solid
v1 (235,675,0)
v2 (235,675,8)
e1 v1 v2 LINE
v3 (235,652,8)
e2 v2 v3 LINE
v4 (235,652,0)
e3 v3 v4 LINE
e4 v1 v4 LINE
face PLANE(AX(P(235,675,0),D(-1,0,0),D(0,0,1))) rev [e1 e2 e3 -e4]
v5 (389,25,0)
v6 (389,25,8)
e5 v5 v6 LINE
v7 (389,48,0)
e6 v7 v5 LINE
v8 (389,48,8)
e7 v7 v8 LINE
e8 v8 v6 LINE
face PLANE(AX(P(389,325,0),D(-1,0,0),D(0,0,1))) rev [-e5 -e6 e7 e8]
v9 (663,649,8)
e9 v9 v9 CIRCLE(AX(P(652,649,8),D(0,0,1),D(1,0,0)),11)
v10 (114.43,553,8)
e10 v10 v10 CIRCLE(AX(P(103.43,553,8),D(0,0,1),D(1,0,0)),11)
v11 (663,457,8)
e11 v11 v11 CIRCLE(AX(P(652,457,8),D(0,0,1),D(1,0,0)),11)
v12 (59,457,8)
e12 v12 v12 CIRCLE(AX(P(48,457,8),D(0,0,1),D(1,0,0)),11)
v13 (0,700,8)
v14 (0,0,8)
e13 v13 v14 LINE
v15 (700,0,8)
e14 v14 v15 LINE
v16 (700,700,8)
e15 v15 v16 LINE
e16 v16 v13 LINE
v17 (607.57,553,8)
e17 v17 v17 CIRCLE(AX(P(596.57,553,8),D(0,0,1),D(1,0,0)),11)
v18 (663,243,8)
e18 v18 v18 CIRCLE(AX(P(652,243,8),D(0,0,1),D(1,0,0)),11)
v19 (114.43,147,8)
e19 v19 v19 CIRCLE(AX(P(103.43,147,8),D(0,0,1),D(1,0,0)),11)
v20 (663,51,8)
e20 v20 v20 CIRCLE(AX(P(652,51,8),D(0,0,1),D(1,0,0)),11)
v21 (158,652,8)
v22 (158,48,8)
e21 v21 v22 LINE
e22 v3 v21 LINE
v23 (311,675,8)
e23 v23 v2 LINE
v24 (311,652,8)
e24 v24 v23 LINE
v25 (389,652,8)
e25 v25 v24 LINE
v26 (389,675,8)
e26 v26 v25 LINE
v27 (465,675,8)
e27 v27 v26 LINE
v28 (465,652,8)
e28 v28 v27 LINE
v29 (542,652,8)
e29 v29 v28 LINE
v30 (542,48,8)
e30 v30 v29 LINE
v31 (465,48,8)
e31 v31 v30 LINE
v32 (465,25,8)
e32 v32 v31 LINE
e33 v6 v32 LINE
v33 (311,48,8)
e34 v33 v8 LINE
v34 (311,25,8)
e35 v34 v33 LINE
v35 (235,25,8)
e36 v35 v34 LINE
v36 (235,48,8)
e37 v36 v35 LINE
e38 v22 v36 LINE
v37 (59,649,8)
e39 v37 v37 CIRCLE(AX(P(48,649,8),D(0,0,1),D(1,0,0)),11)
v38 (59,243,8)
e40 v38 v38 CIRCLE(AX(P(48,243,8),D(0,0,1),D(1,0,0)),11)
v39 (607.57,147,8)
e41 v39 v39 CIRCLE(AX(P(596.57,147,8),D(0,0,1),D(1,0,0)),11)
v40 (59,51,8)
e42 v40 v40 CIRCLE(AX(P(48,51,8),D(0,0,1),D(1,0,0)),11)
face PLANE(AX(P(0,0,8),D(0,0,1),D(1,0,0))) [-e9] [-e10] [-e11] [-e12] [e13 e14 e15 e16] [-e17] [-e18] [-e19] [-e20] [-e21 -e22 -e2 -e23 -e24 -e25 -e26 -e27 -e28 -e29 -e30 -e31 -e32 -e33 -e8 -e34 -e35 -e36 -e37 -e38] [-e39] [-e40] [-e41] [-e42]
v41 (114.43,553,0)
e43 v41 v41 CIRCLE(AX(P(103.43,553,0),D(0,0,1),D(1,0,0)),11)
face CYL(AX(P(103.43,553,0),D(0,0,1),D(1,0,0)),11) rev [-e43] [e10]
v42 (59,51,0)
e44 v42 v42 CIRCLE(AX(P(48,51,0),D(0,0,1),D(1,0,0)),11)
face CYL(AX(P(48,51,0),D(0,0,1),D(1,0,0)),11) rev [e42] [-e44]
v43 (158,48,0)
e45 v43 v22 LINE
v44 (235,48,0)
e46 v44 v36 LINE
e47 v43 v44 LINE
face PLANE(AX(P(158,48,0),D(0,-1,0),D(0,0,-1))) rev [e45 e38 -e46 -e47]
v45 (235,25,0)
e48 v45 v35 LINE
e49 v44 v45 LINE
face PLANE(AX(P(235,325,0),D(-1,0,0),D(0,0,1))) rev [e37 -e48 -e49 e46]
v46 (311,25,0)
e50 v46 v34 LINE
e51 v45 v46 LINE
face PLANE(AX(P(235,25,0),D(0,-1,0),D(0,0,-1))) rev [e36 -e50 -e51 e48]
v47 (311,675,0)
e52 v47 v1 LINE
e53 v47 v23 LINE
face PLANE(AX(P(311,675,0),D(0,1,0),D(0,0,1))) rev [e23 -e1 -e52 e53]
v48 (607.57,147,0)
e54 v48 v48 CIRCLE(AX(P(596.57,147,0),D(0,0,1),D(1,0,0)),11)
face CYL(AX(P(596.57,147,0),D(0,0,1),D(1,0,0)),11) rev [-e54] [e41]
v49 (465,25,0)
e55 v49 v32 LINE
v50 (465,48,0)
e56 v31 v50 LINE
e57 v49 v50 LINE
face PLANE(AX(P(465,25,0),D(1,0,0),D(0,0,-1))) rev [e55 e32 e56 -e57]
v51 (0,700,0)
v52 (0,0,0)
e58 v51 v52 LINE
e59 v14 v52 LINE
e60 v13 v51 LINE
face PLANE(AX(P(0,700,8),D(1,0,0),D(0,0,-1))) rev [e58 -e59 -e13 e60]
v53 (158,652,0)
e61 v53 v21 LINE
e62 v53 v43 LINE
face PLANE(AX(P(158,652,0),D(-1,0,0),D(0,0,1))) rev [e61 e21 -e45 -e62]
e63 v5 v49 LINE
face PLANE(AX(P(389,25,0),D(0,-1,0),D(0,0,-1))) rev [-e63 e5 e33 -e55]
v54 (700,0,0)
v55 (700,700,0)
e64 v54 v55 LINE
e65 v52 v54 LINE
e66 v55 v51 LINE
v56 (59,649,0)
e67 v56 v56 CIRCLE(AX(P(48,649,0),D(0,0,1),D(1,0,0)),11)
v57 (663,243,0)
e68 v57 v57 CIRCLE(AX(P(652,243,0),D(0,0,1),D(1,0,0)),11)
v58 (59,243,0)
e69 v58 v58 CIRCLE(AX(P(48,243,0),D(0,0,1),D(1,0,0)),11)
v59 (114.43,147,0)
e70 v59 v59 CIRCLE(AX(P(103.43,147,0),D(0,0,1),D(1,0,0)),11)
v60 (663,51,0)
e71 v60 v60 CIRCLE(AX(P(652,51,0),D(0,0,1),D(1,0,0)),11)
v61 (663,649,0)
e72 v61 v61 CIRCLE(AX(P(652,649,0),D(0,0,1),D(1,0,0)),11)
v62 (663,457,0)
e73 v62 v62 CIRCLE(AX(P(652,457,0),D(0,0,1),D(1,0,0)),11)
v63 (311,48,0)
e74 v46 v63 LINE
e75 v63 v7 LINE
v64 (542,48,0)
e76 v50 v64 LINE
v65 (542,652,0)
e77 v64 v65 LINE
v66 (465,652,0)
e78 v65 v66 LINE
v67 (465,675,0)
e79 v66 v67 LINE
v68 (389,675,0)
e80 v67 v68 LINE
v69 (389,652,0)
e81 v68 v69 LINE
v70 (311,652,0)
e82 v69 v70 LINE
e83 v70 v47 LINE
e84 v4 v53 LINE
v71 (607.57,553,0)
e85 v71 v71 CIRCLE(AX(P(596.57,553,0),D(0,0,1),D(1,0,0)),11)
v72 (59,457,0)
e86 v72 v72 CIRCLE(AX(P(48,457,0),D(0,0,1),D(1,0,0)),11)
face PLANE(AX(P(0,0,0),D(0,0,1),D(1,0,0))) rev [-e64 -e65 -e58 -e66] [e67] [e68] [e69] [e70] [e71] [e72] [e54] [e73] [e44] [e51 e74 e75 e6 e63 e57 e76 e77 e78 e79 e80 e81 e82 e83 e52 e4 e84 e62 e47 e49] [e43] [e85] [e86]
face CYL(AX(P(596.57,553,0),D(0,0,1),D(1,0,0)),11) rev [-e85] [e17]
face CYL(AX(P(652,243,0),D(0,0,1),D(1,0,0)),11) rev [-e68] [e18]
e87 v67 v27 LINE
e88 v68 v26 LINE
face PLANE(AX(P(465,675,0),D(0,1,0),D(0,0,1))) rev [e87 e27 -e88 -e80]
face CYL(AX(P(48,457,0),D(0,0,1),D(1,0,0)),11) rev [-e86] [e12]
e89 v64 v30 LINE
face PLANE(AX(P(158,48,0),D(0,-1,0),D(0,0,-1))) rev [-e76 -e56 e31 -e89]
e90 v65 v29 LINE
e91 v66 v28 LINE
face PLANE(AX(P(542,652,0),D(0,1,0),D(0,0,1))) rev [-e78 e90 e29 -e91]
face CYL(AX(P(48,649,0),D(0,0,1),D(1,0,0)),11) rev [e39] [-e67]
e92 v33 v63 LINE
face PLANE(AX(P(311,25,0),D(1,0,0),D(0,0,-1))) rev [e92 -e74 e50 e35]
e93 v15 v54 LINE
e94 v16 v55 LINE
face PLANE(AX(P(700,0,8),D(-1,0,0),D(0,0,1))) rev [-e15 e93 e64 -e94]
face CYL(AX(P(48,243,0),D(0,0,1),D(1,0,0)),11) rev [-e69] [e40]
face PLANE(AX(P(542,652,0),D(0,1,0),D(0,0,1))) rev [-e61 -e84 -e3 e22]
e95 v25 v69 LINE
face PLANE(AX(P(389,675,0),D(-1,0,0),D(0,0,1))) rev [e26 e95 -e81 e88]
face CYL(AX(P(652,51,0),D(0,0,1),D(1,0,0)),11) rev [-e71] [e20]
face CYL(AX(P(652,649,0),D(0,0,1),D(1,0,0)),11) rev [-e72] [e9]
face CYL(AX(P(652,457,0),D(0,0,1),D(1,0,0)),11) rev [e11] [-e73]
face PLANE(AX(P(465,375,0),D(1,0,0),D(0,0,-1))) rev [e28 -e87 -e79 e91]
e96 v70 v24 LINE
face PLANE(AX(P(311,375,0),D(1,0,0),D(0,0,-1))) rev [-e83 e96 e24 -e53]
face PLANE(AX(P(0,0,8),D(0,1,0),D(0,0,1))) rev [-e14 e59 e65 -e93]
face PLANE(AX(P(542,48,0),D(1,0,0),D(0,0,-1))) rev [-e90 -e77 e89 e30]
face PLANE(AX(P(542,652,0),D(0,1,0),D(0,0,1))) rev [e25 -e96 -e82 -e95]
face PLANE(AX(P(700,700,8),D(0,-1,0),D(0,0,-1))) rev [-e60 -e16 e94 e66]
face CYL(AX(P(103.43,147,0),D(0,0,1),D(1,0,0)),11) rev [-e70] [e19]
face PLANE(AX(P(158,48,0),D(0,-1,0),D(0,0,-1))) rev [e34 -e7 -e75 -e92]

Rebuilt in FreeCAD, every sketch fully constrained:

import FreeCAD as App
import Part
import Sketcher
from FreeCAD import Vector


def add_polygon(sketch, points):
    """Adds a closed chain of lines whose ends are joined by coincident constraints."""
    first, n = sketch.GeometryCount, len(points)
    for a, b in zip(points, points[1:] + points[:1]):
        sketch.addGeometry(Part.LineSegment(App.Vector(*a, 0), App.Vector(*b, 0)), False)
    for i in range(n):
        sketch.addConstraint(Sketcher.Constraint("Coincident", first + i, 2, first + (i + 1) % n, 1))

doc = App.newDocument("Part")
params = doc.addObject("Spreadsheet::Sheet", "Params")
for row, (alias, value) in enumerate([
    ("sketch1_width", "700 mm"),
    ("pad1_length", "8 mm"),
    ("sketch2_width", "76 mm"),
    ("sketch2_height", "300 mm"),
    ("sketch3_width", "76 mm"),
    ("sketch3_height", "300 mm"),
    ("sketch4_width", "76 mm"),
    ("sketch4_height", "300 mm"),
    ("sketch5_width", "76 mm"),
    ("sketch5_height", "300 mm"),
    ("sketch6_diameter", "22 mm"),
    ("sketch7_diameter", "22 mm"),
    ("sketch8_diameter", "22 mm"),
    ("sketch9_diameter", "22 mm"),
    ("sketch10_diameter", "22 mm"),
    ("sketch11_diameter", "22 mm"),
    ("sketch12_diameter", "22 mm"),
    ("sketch13_diameter", "22 mm"),
    ("sketch14_diameter", "22 mm"),
    ("sketch15_diameter", "22 mm"),
    ("sketch16_diameter", "22 mm"),
    ("sketch17_diameter", "22 mm"),
    ("sketch18_width", "384 mm"),
    ("sketch18_height", "604 mm"),
], start=1):
    params.set(f"A{row}", alias)
    params.set(f"B{row}", "=" + value)
    params.setAlias(f"B{row}", alias)

body = doc.addObject("PartDesign::Body", "Body")

# Sketch on XY plane
sketch1 = doc.addObject("Sketcher::SketchObject", "Sketch")
body.addObject(sketch1)
sketch1.AttachmentSupport = (doc.XY_Plane, [""])
sketch1.MapMode = "FlatFace"
add_polygon(sketch1, [(0, 700), (0, 0), (700, 0), (700, 700)])  # lines 0-3
sketch1.addConstraint([
    Sketcher.Constraint("Vertical", 0),
    Sketcher.Constraint("Horizontal", 1),
    Sketcher.Constraint("Vertical", 2),
    Sketcher.Constraint("Horizontal", 3),
    Sketcher.Constraint("Coincident", 0, 2, -1, 1),
    Sketcher.Constraint("Equal", 3, 0),
    Sketcher.Constraint("DistanceX", 1, 1, 1, 2, 700.0),
])
sketch1.setExpression("Constraints[10]", "Params.sketch1_width")
pad1 = doc.addObject("PartDesign::Pad", "Pad")
body.addObject(pad1)
pad1.Profile = sketch1
pad1.setExpression("Length", "Params.pad1_length")

# Sketch on XY plane
sketch2 = doc.addObject("Sketcher::SketchObject", "Sketch001")
body.addObject(sketch2)
sketch2.AttachmentSupport = (doc.XY_Plane, [""])
sketch2.MapMode = "FlatFace"
sketch2.AttachmentOffset = App.Placement(Vector(0, 0, 8), App.Rotation())
add_polygon(sketch2, [(235, 325), (235, 25), (311, 25), (311, 325)])  # lines 0-3
sketch2.addConstraint([
    Sketcher.Constraint("Vertical", 0),
    Sketcher.Constraint("Horizontal", 1),
    Sketcher.Constraint("Vertical", 2),
    Sketcher.Constraint("Horizontal", 3),
    Sketcher.Constraint("DistanceX", 1, 1, 1, 2, 76.0),
    Sketcher.Constraint("DistanceY", 0, 2, 0, 1, 300.0),
    Sketcher.Constraint("DistanceX", -1, 1, 0, 2, 235.0),
    Sketcher.Constraint("DistanceY", -1, 1, 0, 2, 25.0),
])
sketch2.setExpression("Constraints[8]", "Params.sketch2_width")
sketch2.setExpression("Constraints[9]", "Params.sketch2_height")
pocket1 = doc.addObject("PartDesign::Pocket", "Pocket")
body.addObject(pocket1)
pocket1.Profile = sketch2
pocket1.Type = "ThroughAll"

# Sketch on XY plane
sketch3 = doc.addObject("Sketcher::SketchObject", "Sketch002")
body.addObject(sketch3)
sketch3.AttachmentSupport = (doc.XY_Plane, [""])
sketch3.MapMode = "FlatFace"
sketch3.AttachmentOffset = App.Placement(Vector(0, 0, 8), App.Rotation())
add_polygon(sketch3, [(235, 675), (235, 375), (311, 375), (311, 675)])  # lines 0-3
sketch3.addConstraint([
    Sketcher.Constraint("Vertical", 0),
    Sketcher.Constraint("Horizontal", 1),
    Sketcher.Constraint("Vertical", 2),
    Sketcher.Constraint("Horizontal", 3),
    Sketcher.Constraint("DistanceX", 1, 1, 1, 2, 76.0),
    Sketcher.Constraint("DistanceY", 0, 2, 0, 1, 300.0),
    Sketcher.Constraint("DistanceX", -1, 1, 0, 2, 235.0),
    Sketcher.Constraint("DistanceY", -1, 1, 0, 2, 375.0),
])
sketch3.setExpression("Constraints[8]", "Params.sketch3_width")
sketch3.setExpression("Constraints[9]", "Params.sketch3_height")
pocket2 = doc.addObject("PartDesign::Pocket", "Pocket001")
body.addObject(pocket2)
pocket2.Profile = sketch3
pocket2.Type = "ThroughAll"

# Sketch on XY plane
sketch4 = doc.addObject("Sketcher::SketchObject", "Sketch003")
body.addObject(sketch4)
sketch4.AttachmentSupport = (doc.XY_Plane, [""])
sketch4.MapMode = "FlatFace"
sketch4.AttachmentOffset = App.Placement(Vector(0, 0, 8), App.Rotation())
add_polygon(sketch4, [(389, 325), (389, 25), (465, 25), (465, 325)])  # lines 0-3
sketch4.addConstraint([
    Sketcher.Constraint("Vertical", 0),
    Sketcher.Constraint("Horizontal", 1),
    Sketcher.Constraint("Vertical", 2),
    Sketcher.Constraint("Horizontal", 3),
    Sketcher.Constraint("DistanceX", 1, 1, 1, 2, 76.0),
    Sketcher.Constraint("DistanceY", 0, 2, 0, 1, 300.0),
    Sketcher.Constraint("DistanceX", -1, 1, 0, 2, 389.0),
    Sketcher.Constraint("DistanceY", -1, 1, 0, 2, 25.0),
])
sketch4.setExpression("Constraints[8]", "Params.sketch4_width")
sketch4.setExpression("Constraints[9]", "Params.sketch4_height")
pocket3 = doc.addObject("PartDesign::Pocket", "Pocket002")
body.addObject(pocket3)
pocket3.Profile = sketch4
pocket3.Type = "ThroughAll"

# Sketch on XY plane
sketch5 = doc.addObject("Sketcher::SketchObject", "Sketch004")
body.addObject(sketch5)
sketch5.AttachmentSupport = (doc.XY_Plane, [""])
sketch5.MapMode = "FlatFace"
sketch5.AttachmentOffset = App.Placement(Vector(0, 0, 8), App.Rotation())
add_polygon(sketch5, [(389, 675), (389, 375), (465, 375), (465, 675)])  # lines 0-3
sketch5.addConstraint([
    Sketcher.Constraint("Vertical", 0),
    Sketcher.Constraint("Horizontal", 1),
    Sketcher.Constraint("Vertical", 2),
    Sketcher.Constraint("Horizontal", 3),
    Sketcher.Constraint("DistanceX", 1, 1, 1, 2, 76.0),
    Sketcher.Constraint("DistanceY", 0, 2, 0, 1, 300.0),
    Sketcher.Constraint("DistanceX", -1, 1, 0, 2, 389.0),
    Sketcher.Constraint("DistanceY", -1, 1, 0, 2, 375.0),
])
sketch5.setExpression("Constraints[8]", "Params.sketch5_width")
sketch5.setExpression("Constraints[9]", "Params.sketch5_height")
pocket4 = doc.addObject("PartDesign::Pocket", "Pocket003")
body.addObject(pocket4)
pocket4.Profile = sketch5
pocket4.Type = "ThroughAll"

# Sketch on XY plane
sketch6 = doc.addObject("Sketcher::SketchObject", "Sketch005")
body.addObject(sketch6)
sketch6.AttachmentSupport = (doc.XY_Plane, [""])
sketch6.MapMode = "FlatFace"
sketch6.AttachmentOffset = App.Placement(Vector(0, 0, 8), App.Rotation())
sketch6.addGeometry(Part.Circle(Vector(48, 51, 0), Vector(0, 0, 1), 11), False)
sketch6.addConstraint([
    Sketcher.Constraint("Diameter", 0, 22.0),
    Sketcher.Constraint("DistanceX", -1, 1, 0, 3, 48.0),
    Sketcher.Constraint("DistanceY", -1, 1, 0, 3, 51.0),
])
sketch6.setExpression("Constraints[0]", "Params.sketch6_diameter")
pocket5 = doc.addObject("PartDesign::Pocket", "Pocket004")
body.addObject(pocket5)
pocket5.Profile = sketch6
pocket5.Type = "ThroughAll"

# Sketch on XY plane
sketch7 = doc.addObject("Sketcher::SketchObject", "Sketch006")
body.addObject(sketch7)
sketch7.AttachmentSupport = (doc.XY_Plane, [""])
sketch7.MapMode = "FlatFace"
sketch7.AttachmentOffset = App.Placement(Vector(0, 0, 8), App.Rotation())
sketch7.addGeometry(Part.Circle(Vector(48, 243, 0), Vector(0, 0, 1), 11), False)
sketch7.addConstraint([
    Sketcher.Constraint("Diameter", 0, 22.0),
    Sketcher.Constraint("DistanceX", -1, 1, 0, 3, 48.0),
    Sketcher.Constraint("DistanceY", -1, 1, 0, 3, 243.0),
])
sketch7.setExpression("Constraints[0]", "Params.sketch7_diameter")
pocket6 = doc.addObject("PartDesign::Pocket", "Pocket005")
body.addObject(pocket6)
pocket6.Profile = sketch7
pocket6.Type = "ThroughAll"

# Sketch on XY plane
sketch8 = doc.addObject("Sketcher::SketchObject", "Sketch007")
body.addObject(sketch8)
sketch8.AttachmentSupport = (doc.XY_Plane, [""])
sketch8.MapMode = "FlatFace"
sketch8.AttachmentOffset = App.Placement(Vector(0, 0, 8), App.Rotation())
sketch8.addGeometry(Part.Circle(Vector(48, 457, 0), Vector(0, 0, 1), 11), False)
sketch8.addConstraint([
    Sketcher.Constraint("Diameter", 0, 22.0),
    Sketcher.Constraint("DistanceX", -1, 1, 0, 3, 48.0),
    Sketcher.Constraint("DistanceY", -1, 1, 0, 3, 457.0),
])
sketch8.setExpression("Constraints[0]", "Params.sketch8_diameter")
pocket7 = doc.addObject("PartDesign::Pocket", "Pocket006")
body.addObject(pocket7)
pocket7.Profile = sketch8
pocket7.Type = "ThroughAll"

# Sketch on XY plane
sketch9 = doc.addObject("Sketcher::SketchObject", "Sketch008")
body.addObject(sketch9)
sketch9.AttachmentSupport = (doc.XY_Plane, [""])
sketch9.MapMode = "FlatFace"
sketch9.AttachmentOffset = App.Placement(Vector(0, 0, 8), App.Rotation())
sketch9.addGeometry(Part.Circle(Vector(48, 649, 0), Vector(0, 0, 1), 11), False)
sketch9.addConstraint([
    Sketcher.Constraint("Diameter", 0, 22.0),
    Sketcher.Constraint("DistanceX", -1, 1, 0, 3, 48.0),
    Sketcher.Constraint("DistanceY", -1, 1, 0, 3, 649.0),
])
sketch9.setExpression("Constraints[0]", "Params.sketch9_diameter")
pocket8 = doc.addObject("PartDesign::Pocket", "Pocket007")
body.addObject(pocket8)
pocket8.Profile = sketch9
pocket8.Type = "ThroughAll"

# Sketch on XY plane
sketch10 = doc.addObject("Sketcher::SketchObject", "Sketch009")
body.addObject(sketch10)
sketch10.AttachmentSupport = (doc.XY_Plane, [""])
sketch10.MapMode = "FlatFace"
sketch10.AttachmentOffset = App.Placement(Vector(0, 0, 8), App.Rotation())
sketch10.addGeometry(Part.Circle(Vector(103.43, 147, 0), Vector(0, 0, 1), 11), False)
sketch10.addConstraint([
    Sketcher.Constraint("Diameter", 0, 22.0),
    Sketcher.Constraint("DistanceY", -1, 1, 0, 3, 147.0),
    Sketcher.Constraint("DistanceX", -1, 1, 0, 3, 103.43),
])
sketch10.setExpression("Constraints[0]", "Params.sketch10_diameter")
pocket9 = doc.addObject("PartDesign::Pocket", "Pocket008")
body.addObject(pocket9)
pocket9.Profile = sketch10
pocket9.Type = "ThroughAll"

# Sketch on XY plane
sketch11 = doc.addObject("Sketcher::SketchObject", "Sketch010")
body.addObject(sketch11)
sketch11.AttachmentSupport = (doc.XY_Plane, [""])
sketch11.MapMode = "FlatFace"
sketch11.AttachmentOffset = App.Placement(Vector(0, 0, 8), App.Rotation())
sketch11.addGeometry(Part.Circle(Vector(103.43, 553, 0), Vector(0, 0, 1), 11), False)
sketch11.addConstraint([
    Sketcher.Constraint("Diameter", 0, 22.0),
    Sketcher.Constraint("DistanceY", -1, 1, 0, 3, 553.0),
    Sketcher.Constraint("DistanceX", -1, 1, 0, 3, 103.43),
])
sketch11.setExpression("Constraints[0]", "Params.sketch11_diameter")
pocket10 = doc.addObject("PartDesign::Pocket", "Pocket009")
body.addObject(pocket10)
pocket10.Profile = sketch11
pocket10.Type = "ThroughAll"

# Sketch on XY plane
sketch12 = doc.addObject("Sketcher::SketchObject", "Sketch011")
body.addObject(sketch12)
sketch12.AttachmentSupport = (doc.XY_Plane, [""])
sketch12.MapMode = "FlatFace"
sketch12.AttachmentOffset = App.Placement(Vector(0, 0, 8), App.Rotation())
sketch12.addGeometry(Part.Circle(Vector(652, 51, 0), Vector(0, 0, 1), 11), False)
sketch12.addConstraint([
    Sketcher.Constraint("Diameter", 0, 22.0),
    Sketcher.Constraint("DistanceX", -1, 1, 0, 3, 652.0),
    Sketcher.Constraint("DistanceY", -1, 1, 0, 3, 51.0),
])
sketch12.setExpression("Constraints[0]", "Params.sketch12_diameter")
pocket11 = doc.addObject("PartDesign::Pocket", "Pocket010")
body.addObject(pocket11)
pocket11.Profile = sketch12
pocket11.Type = "ThroughAll"

# Sketch on XY plane
sketch13 = doc.addObject("Sketcher::SketchObject", "Sketch012")
body.addObject(sketch13)
sketch13.AttachmentSupport = (doc.XY_Plane, [""])
sketch13.MapMode = "FlatFace"
sketch13.AttachmentOffset = App.Placement(Vector(0, 0, 8), App.Rotation())
sketch13.addGeometry(Part.Circle(Vector(652, 243, 0), Vector(0, 0, 1), 11), False)
sketch13.addConstraint([
    Sketcher.Constraint("Diameter", 0, 22.0),
    Sketcher.Constraint("DistanceX", -1, 1, 0, 3, 652.0),
    Sketcher.Constraint("DistanceY", -1, 1, 0, 3, 243.0),
])
sketch13.setExpression("Constraints[0]", "Params.sketch13_diameter")
pocket12 = doc.addObject("PartDesign::Pocket", "Pocket011")
body.addObject(pocket12)
pocket12.Profile = sketch13
pocket12.Type = "ThroughAll"

# Sketch on XY plane
sketch14 = doc.addObject("Sketcher::SketchObject", "Sketch013")
body.addObject(sketch14)
sketch14.AttachmentSupport = (doc.XY_Plane, [""])
sketch14.MapMode = "FlatFace"
sketch14.AttachmentOffset = App.Placement(Vector(0, 0, 8), App.Rotation())
sketch14.addGeometry(Part.Circle(Vector(652, 457, 0), Vector(0, 0, 1), 11), False)
sketch14.addConstraint([
    Sketcher.Constraint("Diameter", 0, 22.0),
    Sketcher.Constraint("DistanceX", -1, 1, 0, 3, 652.0),
    Sketcher.Constraint("DistanceY", -1, 1, 0, 3, 457.0),
])
sketch14.setExpression("Constraints[0]", "Params.sketch14_diameter")
pocket13 = doc.addObject("PartDesign::Pocket", "Pocket012")
body.addObject(pocket13)
pocket13.Profile = sketch14
pocket13.Type = "ThroughAll"

# Sketch on XY plane
sketch15 = doc.addObject("Sketcher::SketchObject", "Sketch014")
body.addObject(sketch15)
sketch15.AttachmentSupport = (doc.XY_Plane, [""])
sketch15.MapMode = "FlatFace"
sketch15.AttachmentOffset = App.Placement(Vector(0, 0, 8), App.Rotation())
sketch15.addGeometry(Part.Circle(Vector(652, 649, 0), Vector(0, 0, 1), 11), False)
sketch15.addConstraint([
    Sketcher.Constraint("Diameter", 0, 22.0),
    Sketcher.Constraint("DistanceX", -1, 1, 0, 3, 652.0),
    Sketcher.Constraint("DistanceY", -1, 1, 0, 3, 649.0),
])
sketch15.setExpression("Constraints[0]", "Params.sketch15_diameter")
pocket14 = doc.addObject("PartDesign::Pocket", "Pocket013")
body.addObject(pocket14)
pocket14.Profile = sketch15
pocket14.Type = "ThroughAll"

# Sketch on XY plane
sketch16 = doc.addObject("Sketcher::SketchObject", "Sketch015")
body.addObject(sketch16)
sketch16.AttachmentSupport = (doc.XY_Plane, [""])
sketch16.MapMode = "FlatFace"
sketch16.AttachmentOffset = App.Placement(Vector(0, 0, 8), App.Rotation())
sketch16.addGeometry(Part.Circle(Vector(596.57, 147, 0), Vector(0, 0, 1), 11), False)
sketch16.addConstraint([
    Sketcher.Constraint("Diameter", 0, 22.0),
    Sketcher.Constraint("DistanceY", -1, 1, 0, 3, 147.0),
    Sketcher.Constraint("DistanceX", -1, 1, 0, 3, 596.57),
])
sketch16.setExpression("Constraints[0]", "Params.sketch16_diameter")
pocket15 = doc.addObject("PartDesign::Pocket", "Pocket014")
body.addObject(pocket15)
pocket15.Profile = sketch16
pocket15.Type = "ThroughAll"

# Sketch on XY plane
sketch17 = doc.addObject("Sketcher::SketchObject", "Sketch016")
body.addObject(sketch17)
sketch17.AttachmentSupport = (doc.XY_Plane, [""])
sketch17.MapMode = "FlatFace"
sketch17.AttachmentOffset = App.Placement(Vector(0, 0, 8), App.Rotation())
sketch17.addGeometry(Part.Circle(Vector(596.57, 553, 0), Vector(0, 0, 1), 11), False)
sketch17.addConstraint([
    Sketcher.Constraint("Diameter", 0, 22.0),
    Sketcher.Constraint("DistanceY", -1, 1, 0, 3, 553.0),
    Sketcher.Constraint("DistanceX", -1, 1, 0, 3, 596.57),
])
sketch17.setExpression("Constraints[0]", "Params.sketch17_diameter")
pocket16 = doc.addObject("PartDesign::Pocket", "Pocket015")
body.addObject(pocket16)
pocket16.Profile = sketch17
pocket16.Type = "ThroughAll"

# Sketch on XY plane
sketch18 = doc.addObject("Sketcher::SketchObject", "Sketch017")
body.addObject(sketch18)
sketch18.AttachmentSupport = (doc.XY_Plane, [""])
sketch18.MapMode = "FlatFace"
sketch18.AttachmentOffset = App.Placement(Vector(0, 0, 8), App.Rotation())
add_polygon(sketch18, [(158, 652), (158, 48), (542, 48), (542, 652)])  # lines 0-3
sketch18.addConstraint([
    Sketcher.Constraint("Vertical", 0),
    Sketcher.Constraint("Horizontal", 1),
    Sketcher.Constraint("Vertical", 2),
    Sketcher.Constraint("Horizontal", 3),
    Sketcher.Constraint("DistanceX", 1, 1, 1, 2, 384.0),
    Sketcher.Constraint("DistanceY", 0, 2, 0, 1, 604.0),
    Sketcher.Constraint("DistanceX", -1, 1, 0, 2, 158.0),
    Sketcher.Constraint("DistanceY", -1, 1, 0, 2, 48.0),
])
sketch18.setExpression("Constraints[8]", "Params.sketch18_width")
sketch18.setExpression("Constraints[9]", "Params.sketch18_height")
pocket17 = doc.addObject("PartDesign::Pocket", "Pocket016")
body.addObject(pocket17)
pocket17.Profile = sketch18
pocket17.Type = "ThroughAll"

doc.recompute()
